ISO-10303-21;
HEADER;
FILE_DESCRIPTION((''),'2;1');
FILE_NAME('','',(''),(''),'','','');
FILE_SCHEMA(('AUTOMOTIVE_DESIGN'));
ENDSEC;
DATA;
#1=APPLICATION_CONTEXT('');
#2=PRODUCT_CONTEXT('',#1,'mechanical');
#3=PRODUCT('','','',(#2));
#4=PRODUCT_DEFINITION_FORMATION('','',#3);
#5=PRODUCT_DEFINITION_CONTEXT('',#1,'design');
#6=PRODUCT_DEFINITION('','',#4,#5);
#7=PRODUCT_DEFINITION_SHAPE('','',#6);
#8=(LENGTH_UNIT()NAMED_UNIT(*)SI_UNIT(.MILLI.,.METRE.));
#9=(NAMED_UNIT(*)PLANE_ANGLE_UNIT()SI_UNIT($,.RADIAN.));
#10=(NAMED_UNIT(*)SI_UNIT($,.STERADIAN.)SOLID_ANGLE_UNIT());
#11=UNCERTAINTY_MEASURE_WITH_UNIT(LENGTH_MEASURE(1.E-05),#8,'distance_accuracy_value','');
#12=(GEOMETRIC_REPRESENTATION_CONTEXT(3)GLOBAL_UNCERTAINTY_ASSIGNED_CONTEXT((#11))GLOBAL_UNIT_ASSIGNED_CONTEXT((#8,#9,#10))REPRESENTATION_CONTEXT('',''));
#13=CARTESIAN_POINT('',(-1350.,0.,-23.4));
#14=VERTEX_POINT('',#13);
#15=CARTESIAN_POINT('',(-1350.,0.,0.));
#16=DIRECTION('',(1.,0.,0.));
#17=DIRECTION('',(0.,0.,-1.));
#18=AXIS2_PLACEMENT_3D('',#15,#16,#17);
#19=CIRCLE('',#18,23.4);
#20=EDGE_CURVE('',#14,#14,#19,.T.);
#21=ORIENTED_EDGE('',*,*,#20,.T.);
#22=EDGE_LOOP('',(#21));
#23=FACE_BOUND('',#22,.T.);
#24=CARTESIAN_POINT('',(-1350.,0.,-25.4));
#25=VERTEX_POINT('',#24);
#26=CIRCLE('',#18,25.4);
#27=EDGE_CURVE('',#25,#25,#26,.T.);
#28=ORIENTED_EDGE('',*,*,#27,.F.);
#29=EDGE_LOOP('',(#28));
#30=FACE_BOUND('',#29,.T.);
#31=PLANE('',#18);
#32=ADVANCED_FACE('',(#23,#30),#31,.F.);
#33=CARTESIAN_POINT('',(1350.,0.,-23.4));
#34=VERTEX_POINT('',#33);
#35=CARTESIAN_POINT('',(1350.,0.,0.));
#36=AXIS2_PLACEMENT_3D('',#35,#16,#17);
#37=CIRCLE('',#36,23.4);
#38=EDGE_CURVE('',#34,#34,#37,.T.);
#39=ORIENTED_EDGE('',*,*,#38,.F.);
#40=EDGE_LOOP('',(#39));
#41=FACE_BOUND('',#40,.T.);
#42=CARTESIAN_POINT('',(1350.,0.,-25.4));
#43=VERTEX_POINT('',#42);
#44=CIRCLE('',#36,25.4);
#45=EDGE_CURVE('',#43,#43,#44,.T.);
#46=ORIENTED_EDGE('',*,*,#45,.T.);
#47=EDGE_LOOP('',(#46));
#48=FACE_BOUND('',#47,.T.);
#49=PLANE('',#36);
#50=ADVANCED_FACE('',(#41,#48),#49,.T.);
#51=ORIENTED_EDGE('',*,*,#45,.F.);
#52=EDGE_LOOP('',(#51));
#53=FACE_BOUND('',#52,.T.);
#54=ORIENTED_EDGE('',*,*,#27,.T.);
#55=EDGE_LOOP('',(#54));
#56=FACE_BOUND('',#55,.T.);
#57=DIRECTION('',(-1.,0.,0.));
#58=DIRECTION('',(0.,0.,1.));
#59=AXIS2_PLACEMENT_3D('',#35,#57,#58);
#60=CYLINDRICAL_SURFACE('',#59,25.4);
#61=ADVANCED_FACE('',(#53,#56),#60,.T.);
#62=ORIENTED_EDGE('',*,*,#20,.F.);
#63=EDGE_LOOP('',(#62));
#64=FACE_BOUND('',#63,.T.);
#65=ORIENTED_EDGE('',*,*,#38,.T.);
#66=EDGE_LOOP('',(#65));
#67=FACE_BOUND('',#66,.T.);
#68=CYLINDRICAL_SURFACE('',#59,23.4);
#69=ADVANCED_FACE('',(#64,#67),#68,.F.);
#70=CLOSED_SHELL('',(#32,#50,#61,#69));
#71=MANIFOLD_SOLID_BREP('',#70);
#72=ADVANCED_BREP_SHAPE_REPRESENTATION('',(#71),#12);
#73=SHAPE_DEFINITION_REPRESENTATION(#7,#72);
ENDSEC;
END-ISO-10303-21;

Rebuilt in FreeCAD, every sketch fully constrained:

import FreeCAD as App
import Part
import Sketcher

doc = App.newDocument("Part")
body = doc.addObject("PartDesign::Body", "Body")

# Sketch on YZ plane
sketch1 = body.newObject("Sketcher::SketchObject", "Sketch")
sketch1.AttachmentSupport = (doc.getObject("YZ_Plane"), [""])
sketch1.MapMode = "FlatFace"
sketch1.addGeometry(Part.Circle(App.Vector(0, 0, 0), App.Vector(0, 0, 1), 25.4), False)
sketch1.addGeometry(Part.Circle(App.Vector(0, 0, 0), App.Vector(0, 0, 1), 23.4), False)
sketch1.addConstraint(Sketcher.Constraint("Coincident", 0, 3, -1, 1))
sketch1.addConstraint(Sketcher.Constraint("Coincident", 1, 3, -1, 1))
sketch1.addConstraint(Sketcher.Constraint("Diameter", 0, 50.8))
sketch1.addConstraint(Sketcher.Constraint("Diameter", 1, 46.8))
pad1 = body.newObject("PartDesign::Pad", "Pad")
pad1.Profile = sketch1
pad1.Length = 2700
pad1.Midplane = True

doc.recompute()
